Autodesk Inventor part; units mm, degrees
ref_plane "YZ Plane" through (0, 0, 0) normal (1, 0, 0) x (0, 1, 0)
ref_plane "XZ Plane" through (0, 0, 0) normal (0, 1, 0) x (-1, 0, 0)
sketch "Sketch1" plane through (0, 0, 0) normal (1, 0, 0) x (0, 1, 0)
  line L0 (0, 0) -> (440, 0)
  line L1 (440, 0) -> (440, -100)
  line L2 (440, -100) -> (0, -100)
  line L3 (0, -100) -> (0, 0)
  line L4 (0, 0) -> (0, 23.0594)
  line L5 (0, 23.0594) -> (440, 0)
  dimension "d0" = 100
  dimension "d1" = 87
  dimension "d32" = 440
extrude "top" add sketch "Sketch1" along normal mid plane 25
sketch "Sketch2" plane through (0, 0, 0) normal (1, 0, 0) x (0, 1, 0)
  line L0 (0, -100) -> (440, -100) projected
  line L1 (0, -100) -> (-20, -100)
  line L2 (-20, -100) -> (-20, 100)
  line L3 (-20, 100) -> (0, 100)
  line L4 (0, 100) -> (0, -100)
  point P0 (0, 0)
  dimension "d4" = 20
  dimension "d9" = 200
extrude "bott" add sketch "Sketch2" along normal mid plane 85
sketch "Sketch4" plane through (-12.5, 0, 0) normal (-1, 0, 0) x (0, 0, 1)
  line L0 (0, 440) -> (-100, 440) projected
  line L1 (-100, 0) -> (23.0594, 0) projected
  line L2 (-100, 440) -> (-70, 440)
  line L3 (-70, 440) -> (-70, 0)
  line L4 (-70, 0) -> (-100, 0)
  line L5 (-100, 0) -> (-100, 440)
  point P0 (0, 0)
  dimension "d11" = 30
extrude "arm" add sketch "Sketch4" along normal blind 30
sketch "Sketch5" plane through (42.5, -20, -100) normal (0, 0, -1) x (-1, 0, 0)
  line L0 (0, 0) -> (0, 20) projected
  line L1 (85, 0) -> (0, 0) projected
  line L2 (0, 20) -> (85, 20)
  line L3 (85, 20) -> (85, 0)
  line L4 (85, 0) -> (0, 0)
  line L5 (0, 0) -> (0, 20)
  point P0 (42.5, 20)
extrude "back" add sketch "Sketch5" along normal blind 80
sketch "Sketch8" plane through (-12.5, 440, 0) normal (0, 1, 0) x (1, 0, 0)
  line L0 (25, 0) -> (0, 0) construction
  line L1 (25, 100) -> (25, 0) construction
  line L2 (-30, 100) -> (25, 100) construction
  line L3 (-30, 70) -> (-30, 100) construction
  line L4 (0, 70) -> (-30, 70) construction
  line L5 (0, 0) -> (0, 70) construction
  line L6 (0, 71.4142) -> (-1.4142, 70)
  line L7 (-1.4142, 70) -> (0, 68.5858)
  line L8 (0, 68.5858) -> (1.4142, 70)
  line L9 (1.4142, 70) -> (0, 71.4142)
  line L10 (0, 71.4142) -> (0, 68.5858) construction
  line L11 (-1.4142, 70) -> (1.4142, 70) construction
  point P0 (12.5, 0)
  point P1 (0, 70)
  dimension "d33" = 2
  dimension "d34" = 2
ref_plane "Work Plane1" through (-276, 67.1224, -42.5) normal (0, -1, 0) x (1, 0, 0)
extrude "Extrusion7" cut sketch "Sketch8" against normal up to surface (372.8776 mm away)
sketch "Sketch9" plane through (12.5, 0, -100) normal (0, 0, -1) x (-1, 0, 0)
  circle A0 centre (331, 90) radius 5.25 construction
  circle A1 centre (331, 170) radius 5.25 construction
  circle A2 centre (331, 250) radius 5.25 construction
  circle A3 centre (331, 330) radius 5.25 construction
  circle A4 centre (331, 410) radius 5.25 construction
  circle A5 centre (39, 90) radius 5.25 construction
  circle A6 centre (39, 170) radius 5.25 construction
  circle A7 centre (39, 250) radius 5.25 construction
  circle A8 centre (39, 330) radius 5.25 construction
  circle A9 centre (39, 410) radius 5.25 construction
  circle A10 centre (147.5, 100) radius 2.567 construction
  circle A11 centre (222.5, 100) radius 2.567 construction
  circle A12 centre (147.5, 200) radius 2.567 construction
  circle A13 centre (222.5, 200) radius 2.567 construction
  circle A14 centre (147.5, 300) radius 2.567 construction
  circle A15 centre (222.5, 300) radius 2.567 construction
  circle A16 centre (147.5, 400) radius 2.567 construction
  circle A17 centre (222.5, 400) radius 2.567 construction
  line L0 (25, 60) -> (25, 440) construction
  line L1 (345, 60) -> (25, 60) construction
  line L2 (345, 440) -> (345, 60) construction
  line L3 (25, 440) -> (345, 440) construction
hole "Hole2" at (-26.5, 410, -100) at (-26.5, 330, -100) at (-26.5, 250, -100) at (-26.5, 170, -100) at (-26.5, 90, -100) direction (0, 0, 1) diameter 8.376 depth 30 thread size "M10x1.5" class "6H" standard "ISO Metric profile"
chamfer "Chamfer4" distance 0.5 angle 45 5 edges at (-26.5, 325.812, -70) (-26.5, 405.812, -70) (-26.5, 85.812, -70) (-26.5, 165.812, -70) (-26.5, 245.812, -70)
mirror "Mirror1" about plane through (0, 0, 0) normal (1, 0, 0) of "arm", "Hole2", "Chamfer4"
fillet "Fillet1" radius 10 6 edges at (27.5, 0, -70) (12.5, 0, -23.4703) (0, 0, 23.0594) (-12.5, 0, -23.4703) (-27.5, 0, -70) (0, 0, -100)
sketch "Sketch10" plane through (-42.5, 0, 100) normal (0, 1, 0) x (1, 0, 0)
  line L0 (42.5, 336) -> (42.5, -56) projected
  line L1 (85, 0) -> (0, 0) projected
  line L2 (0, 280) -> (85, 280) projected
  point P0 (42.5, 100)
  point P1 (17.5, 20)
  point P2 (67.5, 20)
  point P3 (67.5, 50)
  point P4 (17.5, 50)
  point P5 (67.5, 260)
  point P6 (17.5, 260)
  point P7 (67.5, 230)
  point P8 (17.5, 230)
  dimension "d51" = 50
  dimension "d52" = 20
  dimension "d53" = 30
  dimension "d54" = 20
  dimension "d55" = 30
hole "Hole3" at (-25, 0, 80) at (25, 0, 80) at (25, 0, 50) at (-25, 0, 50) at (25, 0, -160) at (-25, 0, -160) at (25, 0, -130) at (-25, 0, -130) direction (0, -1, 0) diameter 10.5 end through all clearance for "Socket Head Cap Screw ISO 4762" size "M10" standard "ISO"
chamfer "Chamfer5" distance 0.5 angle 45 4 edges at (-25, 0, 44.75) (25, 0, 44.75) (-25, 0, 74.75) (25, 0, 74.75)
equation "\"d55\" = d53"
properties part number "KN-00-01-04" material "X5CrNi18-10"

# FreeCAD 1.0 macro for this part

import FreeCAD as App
import Part
import Sketcher
Q = App.Units.Quantity


def edges_at(feature, points):
    """Names of the edges that pass closest to the given points."""
    edges = feature.Shape.Edges
    near = lambda p: min(range(len(edges)), key=lambda i: edges[i].distToShape(Part.Vertex(*p))[0])
    return sorted({f"Edge{near(p) + 1}" for p in points})


def add_polygon(sketch, points):
    """Adds a closed chain of lines whose ends are joined by coincident constraints."""
    first, n = sketch.GeometryCount, len(points)
    for a, b in zip(points, points[1:] + points[:1]):
        sketch.addGeometry(Part.LineSegment(App.Vector(*a, 0), App.Vector(*b, 0)), False)
    for i in range(n):
        sketch.addConstraint(Sketcher.Constraint("Coincident", first + i, 2, first + (i + 1) % n, 1))

doc = App.newDocument("Part")
params = doc.addObject("Spreadsheet::Sheet", "Params")
for row, (alias, value) in enumerate([
    ("sketch1_width", "440 mm"),
    ("sketch1_height", "100 mm"),
    ("pad1_length", "25 mm"),
    ("sketch2_width", "20 mm"),
    ("sketch2_height", "200 mm"),
    ("pad2_length", "85 mm"),
    ("sketch3_height", "30 mm"),
    ("sketch3_width", "440 mm"),
    ("pad3_length", "30 mm"),
    ("sketch4_width", "85 mm"),
    ("sketch4_height", "20 mm"),
    ("pad4_length", "80 mm"),
    ("sketch5_length", "2 mm"),
    ("pocket1_length", "372.8776 mm"),
    ("hole_diameter", "8.376 mm"),
    ("hole_depth", "30 mm"),
    ("chamfer_size", "0.5 mm"),
    ("fillet_radius", "10 mm"),
    ("sketch7_diameter", "10.5 mm"),
    ("hole2_diameter", "10.5 mm"),
    ("chamfer2_size", "0.5 mm"),
], start=1):
    params.set(f"A{row}", alias)
    params.set(f"B{row}", "=" + value)
    params.setAlias(f"B{row}", alias)

body = doc.addObject("PartDesign::Body", "Body")

sketch1 = body.newObject("Sketcher::SketchObject", "Sketch")
sketch1.AttachmentSupport = (doc.getObject("YZ_Plane"), [""])
sketch1.MapMode = "FlatFace"
add_polygon(sketch1, [(0, 23), (0, -100), (440, -100), (440, 0)])
sketch1.addConstraint([
    Sketcher.Constraint("Vertical", 0),
    Sketcher.Constraint("Horizontal", 1),
    Sketcher.Constraint("Vertical", 2),
    Sketcher.Constraint("PointOnObject", 0, 2, -2),
    Sketcher.Constraint("PointOnObject", 2, 2, -1),
    Sketcher.Constraint("DistanceX", 1, 1, 1, 2, 440.0),
    Sketcher.Constraint("DistanceY", 2, 1, 2, 2, 100.0),
    Sketcher.Constraint("Angle", 3, Q("177 deg")),
])
sketch1.setExpression("Constraints[9]", "Params.sketch1_width")
sketch1.setExpression("Constraints[10]", "Params.sketch1_height")
pad1 = body.newObject("PartDesign::Pad", "Pad")
pad1.Profile = sketch1
pad1.setExpression("Length", "Params.pad1_length")
pad1.Midplane = True

sketch2 = body.newObject("Sketcher::SketchObject", "Sketch001")
sketch2.AttachmentSupport = (doc.getObject("YZ_Plane"), [""])
sketch2.MapMode = "FlatFace"
add_polygon(sketch2, [(-20, -100), (0, -100), (0, 100), (-20, 100)])
sketch2.addConstraint([
    Sketcher.Constraint("Horizontal", 0),
    Sketcher.Constraint("Vertical", 1),
    Sketcher.Constraint("Horizontal", 2),
    Sketcher.Constraint("Vertical", 3),
    Sketcher.Constraint("Symmetric", 0, 2, 1, 2, -1, 1),
    Sketcher.Constraint("DistanceX", 0, 1, 0, 2, 20.0),
    Sketcher.Constraint("DistanceY", 1, 1, 1, 2, 200.0),
])
sketch2.setExpression("Constraints[9]", "Params.sketch2_width")
sketch2.setExpression("Constraints[10]", "Params.sketch2_height")
pad2 = body.newObject("PartDesign::Pad", "Pad001")
pad2.Profile = sketch2
pad2.setExpression("Length", "Params.pad2_length")
pad2.Midplane = True

sketch3 = body.newObject("Sketcher::SketchObject", "Sketch002")
sketch3.AttachmentSupport = (doc.getObject("YZ_Plane"), [""])
sketch3.MapMode = "FlatFace"
sketch3.AttachmentOffset = App.Placement(App.Vector(0, 0, -12.5), App.Rotation())
add_polygon(sketch3, [(0, -70), (440, -70), (440, -100), (0, -100)])
sketch3.addConstraint([
    Sketcher.Constraint("Horizontal", 0),
    Sketcher.Constraint("Vertical", 1),
    Sketcher.Constraint("Horizontal", 2),
    Sketcher.Constraint("Vertical", 3),
    Sketcher.Constraint("PointOnObject", 2, 2, -2),
    Sketcher.Constraint("DistanceY", 1, 2, 1, 1, 30.0),
    Sketcher.Constraint("DistanceX", 0, 1, 0, 2, 440.0),
    Sketcher.Constraint("DistanceY", 0, 2, -1, 1, 70.0),
])
sketch3.setExpression("Constraints[9]", "Params.sketch3_height")
sketch3.setExpression("Constraints[10]", "Params.sketch3_width")
pad3 = body.newObject("PartDesign::Pad", "Pad002")
pad3.Profile = sketch3
pad3.setExpression("Length", "Params.pad3_length")
pad3.Reversed = True

sketch4 = body.newObject("Sketcher::SketchObject", "Sketch003")
sketch4.AttachmentSupport = (doc.getObject("XY_Plane"), [""])
sketch4.MapMode = "FlatFace"
sketch4.AttachmentOffset = App.Placement(App.Vector(0, 0, -100), App.Rotation())
add_polygon(sketch4, [(42, 0), (42, -20), (-42, -20), (-42, 0)])
sketch4.addConstraint([
    Sketcher.Constraint("Vertical", 0),
    Sketcher.Constraint("Horizontal", 1),
    Sketcher.Constraint("Vertical", 2),
    Sketcher.Constraint("Horizontal", 3),
    Sketcher.Constraint("Symmetric", 2, 2, 3, 2, -1, 1),
    Sketcher.Constraint("DistanceX", 1, 2, 1, 1, 85.0),
    Sketcher.Constraint("DistanceY", 0, 2, 0, 1, 20.0),
])
sketch4.setExpression("Constraints[9]", "Params.sketch4_width")
sketch4.setExpression("Constraints[10]", "Params.sketch4_height")
pad4 = body.newObject("PartDesign::Pad", "Pad003")
pad4.Profile = sketch4
pad4.setExpression("Length", "Params.pad4_length")
pad4.Reversed = True

sketch5 = body.newObject("Sketcher::SketchObject", "Sketch004")
sketch5.AttachmentSupport = (doc.getObject("XZ_Plane"), [""])
sketch5.MapMode = "FlatFace"
sketch5.AttachmentOffset = App.Placement(App.Vector(0, 0, -440), App.Rotation())
add_polygon(sketch5, [(-11.1, -70), (-12.5, -71.4), (-13.9, -70), (-12.5, -68.6)])
sketch5.addConstraint([
    Sketcher.Constraint("Perpendicular", 0, 1),
    Sketcher.Constraint("Perpendicular", 1, 2),
    Sketcher.Constraint("Perpendicular", 2, 3),
    Sketcher.Constraint("Horizontal", 1, 2, 3, 2),
    Sketcher.Constraint("Vertical", 0, 2, 2, 2),
    Sketcher.Constraint("Distance", 0, 2.0),
    Sketcher.Constraint("DistanceY", 1, 2, -1, 1, 70.0),
    Sketcher.Constraint("DistanceX", 0, 2, -1, 1, 12.5),
])
sketch5.setExpression("Constraints[9]", "Params.sketch5_length")
pocket1 = body.newObject("PartDesign::Pocket", "Pocket")
pocket1.Profile = sketch5
pocket1.setExpression("Length", "Params.pocket1_length")
pocket1.Reversed = True

sketch6 = body.newObject("Sketcher::SketchObject", "Sketch005")
sketch6.AttachmentSupport = (doc.getObject("XY_Plane"), [""])
sketch6.MapMode = "FlatFace"
sketch6.AttachmentOffset = App.Placement(App.Vector(0, 0, -100), App.Rotation())
sketch6.addGeometry([
    Part.Circle(App.Vector(-26.5, 410, 0), App.Vector(0, 0, 1), 4.2),
    Part.Circle(App.Vector(-26.5, 330, 0), App.Vector(0, 0, 1), 4.2),
    Part.Circle(App.Vector(-26.5, 250, 0), App.Vector(0, 0, 1), 4.2),
    Part.Circle(App.Vector(-26.5, 170, 0), App.Vector(0, 0, 1), 4.2),
    Part.Circle(App.Vector(-26.5, 90, 0), App.Vector(0, 0, 1), 4.2),
], False)
sketch6.addConstraint([
    Sketcher.Constraint("Equal", 0, 1),
    Sketcher.Constraint("Equal", 1, 2),
    Sketcher.Constraint("Equal", 2, 3),
    Sketcher.Constraint("Equal", 3, 4),
    Sketcher.Constraint("Vertical", 0, 3, 1, 3),
    Sketcher.Constraint("Vertical", 1, 3, 2, 3),
    Sketcher.Constraint("Vertical", 2, 3, 3, 3),
    Sketcher.Constraint("Vertical", 3, 3, 4, 3),
    Sketcher.Constraint("Diameter", 0, 8.376),
    Sketcher.Constraint("DistanceY", -1, 1, 0, 3, 410.0),
    Sketcher.Constraint("DistanceY", -1, 1, 1, 3, 330.0),
    Sketcher.Constraint("DistanceY", -1, 1, 2, 3, 250.0),
    Sketcher.Constraint("DistanceY", -1, 1, 3, 3, 170.0),
    Sketcher.Constraint("DistanceY", -1, 1, 4, 3, 90.0),
    Sketcher.Constraint("DistanceX", 0, 3, -1, 1, 26.5),
])
doc.recompute()
hole = body.newObject("PartDesign::Hole", "Hole")
hole.Profile = sketch6
hole.ThreadType = "None"
hole.setExpression("Diameter", "Params.hole_diameter")
hole.DepthType = "Dimension"
hole.setExpression("Depth", "Params.hole_depth")
hole.DrillPoint = "Flat"
hole.Reversed = True
doc.recompute()

chamfer = body.newObject("PartDesign::Chamfer", "Chamfer")
chamfer.Base = (hole, edges_at(hole, [
    (-26.5, 325.812, -70),
    (-26.5, 405.812, -70),
    (-26.5, 85.812, -70),
    (-26.5, 165.812, -70),
    (-26.5, 245.812, -70),
]))
chamfer.setExpression("Size", "Params.chamfer_size")
doc.recompute()

mirrored = body.newObject("PartDesign::Mirrored", "Mirrored")
mirrored.Originals = [pad3, hole, chamfer]
mirrored.MirrorPlane = (doc.getObject("YZ_Plane"), [""])
body.Tip = mirrored
doc.recompute()

fillet = body.newObject("PartDesign::Fillet", "Fillet")
fillet.Base = (mirrored, edges_at(mirrored, [
    (27.5, 0, -70),
    (12.5, 0, -23.47),
    (0, 0, 23.059),
    (-12.5, 0, -23.47),
    (-27.5, 0, -70),
    (0, 0, -100),
]))
fillet.setExpression("Radius", "Params.fillet_radius")

sketch7 = body.newObject("Sketcher::SketchObject", "Sketch006")
sketch7.AttachmentSupport = (doc.getObject("XZ_Plane"), [""])
sketch7.MapMode = "FlatFace"
sketch7.addGeometry([
    Part.Circle(App.Vector(-25, 80, 0), App.Vector(0, 0, 1), 5),
    Part.Circle(App.Vector(25, 80, 0), App.Vector(0, 0, 1), 5),
    Part.Circle(App.Vector(25, 50, 0), App.Vector(0, 0, 1), 5),
    Part.Circle(App.Vector(-25, 50, 0), App.Vector(0, 0, 1), 5),
    Part.Circle(App.Vector(25, -160, 0), App.Vector(0, 0, 1), 5),
    Part.Circle(App.Vector(-25, -160, 0), App.Vector(0, 0, 1), 5),
    Part.Circle(App.Vector(25, -130, 0), App.Vector(0, 0, 1), 5),
    Part.Circle(App.Vector(-25, -130, 0), App.Vector(0, 0, 1), 5),
], False)
sketch7.addConstraint([
    Sketcher.Constraint("Equal", 0, 1),
    Sketcher.Constraint("Equal", 1, 2),
    Sketcher.Constraint("Equal", 2, 3),
    Sketcher.Constraint("Equal", 3, 4),
    Sketcher.Constraint("Equal", 4, 5),
    Sketcher.Constraint("Equal", 5, 6),
    Sketcher.Constraint("Equal", 6, 7),
    Sketcher.Constraint("Symmetric", 0, 3, 1, 3, -2),
    Sketcher.Constraint("Symmetric", 2, 3, 3, 3, -2),
    Sketcher.Constraint("Symmetric", 4, 3, 5, 3, -2),
    Sketcher.Constraint("Symmetric", 6, 3, 7, 3, -2),
    Sketcher.Constraint("Vertical", 1, 3, 2, 3),
    Sketcher.Constraint("Vertical", 2, 3, 4, 3),
    Sketcher.Constraint("Vertical", 4, 3, 6, 3),
    Sketcher.Constraint("Diameter", 0, 10.5),
    Sketcher.Constraint("DistanceX", 0, 3, -1, 1, 25.0),
    Sketcher.Constraint("DistanceY", -1, 1, 0, 3, 80.0),
    Sketcher.Constraint("DistanceY", -1, 1, 2, 3, 50.0),
    Sketcher.Constraint("DistanceY", 4, 3, -1, 1, 160.0),
    Sketcher.Constraint("DistanceY", 6, 3, -1, 1, 130.0),
])
sketch7.setExpression("Constraints[14]", "Params.sketch7_diameter")
doc.recompute()
hole2 = body.newObject("PartDesign::Hole", "Hole001")
hole2.Profile = sketch7
hole2.ThreadType = "None"
hole2.setExpression("Diameter", "Params.hole2_diameter")
hole2.DepthType = "ThroughAll"
hole2.Reversed = True
doc.recompute()

chamfer2 = body.newObject("PartDesign::Chamfer", "Chamfer001")
chamfer2.Base = (hole2, edges_at(hole2, [
    (-25, 0, 44.75),
    (25, 0, 44.75),
    (-25, 0, 74.75),
    (25, 0, 74.75),
]))
chamfer2.setExpression("Size", "Params.chamfer2_size")

doc.recompute()
